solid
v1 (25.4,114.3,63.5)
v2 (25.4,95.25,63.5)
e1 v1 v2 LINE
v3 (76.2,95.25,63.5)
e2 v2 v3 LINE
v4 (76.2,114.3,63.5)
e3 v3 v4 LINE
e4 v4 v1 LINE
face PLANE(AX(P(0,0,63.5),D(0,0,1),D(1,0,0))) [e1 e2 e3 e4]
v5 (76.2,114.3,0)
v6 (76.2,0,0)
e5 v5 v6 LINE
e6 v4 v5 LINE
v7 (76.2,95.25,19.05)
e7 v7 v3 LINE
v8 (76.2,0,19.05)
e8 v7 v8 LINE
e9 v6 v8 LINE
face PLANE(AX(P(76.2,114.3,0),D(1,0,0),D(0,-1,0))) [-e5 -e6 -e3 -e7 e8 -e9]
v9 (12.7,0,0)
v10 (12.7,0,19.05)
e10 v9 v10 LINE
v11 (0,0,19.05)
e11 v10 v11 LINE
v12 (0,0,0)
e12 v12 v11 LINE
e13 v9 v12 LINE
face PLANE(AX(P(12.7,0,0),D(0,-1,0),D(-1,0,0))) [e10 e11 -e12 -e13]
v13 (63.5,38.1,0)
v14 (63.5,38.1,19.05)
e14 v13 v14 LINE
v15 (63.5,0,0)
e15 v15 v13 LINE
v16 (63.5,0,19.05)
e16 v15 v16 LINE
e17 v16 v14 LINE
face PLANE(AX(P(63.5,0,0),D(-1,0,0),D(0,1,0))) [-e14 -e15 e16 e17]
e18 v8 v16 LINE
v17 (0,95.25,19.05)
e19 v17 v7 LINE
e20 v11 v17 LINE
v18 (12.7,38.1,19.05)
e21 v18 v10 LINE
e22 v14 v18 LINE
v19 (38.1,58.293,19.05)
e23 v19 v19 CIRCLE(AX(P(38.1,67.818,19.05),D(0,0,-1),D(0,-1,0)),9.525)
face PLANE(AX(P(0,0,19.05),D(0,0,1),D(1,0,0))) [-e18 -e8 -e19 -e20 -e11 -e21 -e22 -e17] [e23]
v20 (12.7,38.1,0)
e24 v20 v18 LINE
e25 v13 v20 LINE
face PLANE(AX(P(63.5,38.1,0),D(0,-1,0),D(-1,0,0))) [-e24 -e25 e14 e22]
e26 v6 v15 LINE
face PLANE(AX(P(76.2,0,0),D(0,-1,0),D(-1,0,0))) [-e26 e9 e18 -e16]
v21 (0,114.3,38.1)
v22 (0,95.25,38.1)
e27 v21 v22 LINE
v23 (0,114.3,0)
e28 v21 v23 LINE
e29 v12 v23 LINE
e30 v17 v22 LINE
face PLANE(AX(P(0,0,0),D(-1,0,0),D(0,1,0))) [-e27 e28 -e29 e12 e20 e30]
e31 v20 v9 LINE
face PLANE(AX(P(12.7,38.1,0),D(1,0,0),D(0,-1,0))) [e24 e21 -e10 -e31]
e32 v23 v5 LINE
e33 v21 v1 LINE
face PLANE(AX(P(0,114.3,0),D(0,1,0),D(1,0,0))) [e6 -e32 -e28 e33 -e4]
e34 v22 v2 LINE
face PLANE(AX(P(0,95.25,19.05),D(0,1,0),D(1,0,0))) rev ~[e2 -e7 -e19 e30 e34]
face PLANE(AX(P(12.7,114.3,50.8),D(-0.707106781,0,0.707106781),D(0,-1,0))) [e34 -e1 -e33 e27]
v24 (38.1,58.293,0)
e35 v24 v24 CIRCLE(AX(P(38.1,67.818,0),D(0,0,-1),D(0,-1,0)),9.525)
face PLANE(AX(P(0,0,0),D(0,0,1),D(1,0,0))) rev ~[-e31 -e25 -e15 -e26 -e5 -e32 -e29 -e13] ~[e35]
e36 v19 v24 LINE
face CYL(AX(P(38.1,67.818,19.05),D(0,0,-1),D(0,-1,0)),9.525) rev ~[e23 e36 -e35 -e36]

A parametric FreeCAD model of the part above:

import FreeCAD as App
import Part
import Sketcher
from FreeCAD import Vector
Q = App.Units.Quantity


def edges_at(feature, points):
    """Names of the edges that pass closest to the given points."""
    edges = feature.Shape.Edges
    near = lambda p: min(range(len(edges)), key=lambda i: edges[i].distToShape(Part.Vertex(*p))[0])
    return sorted({f"Edge{near(p) + 1}" for p in points})

doc = App.newDocument("Part")
body = doc.addObject("PartDesign::Body", "Body")

sketch1 = body.newObject("Sketcher::SketchObject", "Sketch")
sketch1.AttachmentSupport = (doc.getObject("XY_Plane"), [""])
sketch1.MapMode = "FlatFace"
sketch1.addGeometry(Part.LineSegment(Vector(0, 114.3, 0), Vector(0, 0, 0)), False)
sketch1.addGeometry(Part.LineSegment(Vector(0, 0, 0), Vector(12.7, 0, 0)), False)
sketch1.addGeometry(Part.LineSegment(Vector(12.7, 0, 0), Vector(12.7, 38.1, 0)), False)
sketch1.addGeometry(Part.LineSegment(Vector(12.7, 38.1, 0), Vector(63.5, 38.1, 0)), False)
sketch1.addGeometry(Part.LineSegment(Vector(63.5, 38.1, 0), Vector(63.5, 0, 0)), False)
sketch1.addGeometry(Part.LineSegment(Vector(63.5, 0, 0), Vector(76.2, 0, 0)), False)
sketch1.addGeometry(Part.LineSegment(Vector(76.2, 0, 0), Vector(76.2, 114.3, 0)), False)
sketch1.addGeometry(Part.LineSegment(Vector(76.2, 114.3, 0), Vector(0, 114.3, 0)), False)
sketch1.addConstraint(Sketcher.Constraint("Coincident", 0, 2, 1, 1))
sketch1.addConstraint(Sketcher.Constraint("Coincident", 1, 2, 2, 1))
sketch1.addConstraint(Sketcher.Constraint("Coincident", 2, 2, 3, 1))
sketch1.addConstraint(Sketcher.Constraint("Coincident", 3, 2, 4, 1))
sketch1.addConstraint(Sketcher.Constraint("Coincident", 4, 2, 5, 1))
sketch1.addConstraint(Sketcher.Constraint("Coincident", 5, 2, 6, 1))
sketch1.addConstraint(Sketcher.Constraint("Coincident", 6, 2, 7, 1))
sketch1.addConstraint(Sketcher.Constraint("Coincident", 7, 2, 0, 1))
sketch1.addConstraint(Sketcher.Constraint("Vertical", 0))
sketch1.addConstraint(Sketcher.Constraint("Horizontal", 1))
sketch1.addConstraint(Sketcher.Constraint("Vertical", 2))
sketch1.addConstraint(Sketcher.Constraint("Horizontal", 3))
sketch1.addConstraint(Sketcher.Constraint("Vertical", 4))
sketch1.addConstraint(Sketcher.Constraint("Horizontal", 5))
sketch1.addConstraint(Sketcher.Constraint("Vertical", 6))
sketch1.addConstraint(Sketcher.Constraint("Horizontal", 7))
sketch1.addConstraint(Sketcher.Constraint("Coincident", 0, 2, -1, 1))
sketch1.addConstraint(Sketcher.Constraint("PointOnObject", 4, 2, -1))
sketch1.addConstraint(Sketcher.Constraint("Equal", 1, 5))
sketch1.addConstraint(Sketcher.Constraint("DistanceX", 3, 1, 3, 2, Q("2 in")))
sketch1.addConstraint(Sketcher.Constraint("DistanceX", 7, 2, 7, 1, Q("3 in")))
sketch1.addConstraint(Sketcher.Constraint("DistanceY", 0, 2, 0, 1, Q("4.5 in")))
sketch1.addConstraint(Sketcher.Constraint("DistanceY", 2, 1, 2, 2, Q("1.5 in")))
pad1 = body.newObject("PartDesign::Pad", "Pad")
pad1.Profile = sketch1
pad1.Length = Q("0.75 in")

sketch2 = body.newObject("Sketcher::SketchObject", "Sketch001")
sketch2.AttachmentSupport = (doc.getObject("XY_Plane"), [""])
sketch2.MapMode = "FlatFace"
sketch2.AttachmentOffset = App.Placement(Vector(0, 0, 0.75 * 25.4), App.Rotation())
sketch2.addGeometry(Part.LineSegment(Vector(76.2, 114.3, 0), Vector(0, 114.3, 0)), False)
sketch2.addGeometry(Part.LineSegment(Vector(0, 114.3, 0), Vector(0, 95.25, 0)), False)
sketch2.addGeometry(Part.LineSegment(Vector(0, 95.25, 0), Vector(76.2, 95.25, 0)), False)
sketch2.addGeometry(Part.LineSegment(Vector(76.2, 95.25, 0), Vector(76.2, 114.3, 0)), False)
sketch2.addConstraint(Sketcher.Constraint("Coincident", 0, 2, 1, 1))
sketch2.addConstraint(Sketcher.Constraint("Coincident", 1, 2, 2, 1))
sketch2.addConstraint(Sketcher.Constraint("Coincident", 2, 2, 3, 1))
sketch2.addConstraint(Sketcher.Constraint("Coincident", 3, 2, 0, 1))
sketch2.addConstraint(Sketcher.Constraint("Horizontal", 0))
sketch2.addConstraint(Sketcher.Constraint("Vertical", 1))
sketch2.addConstraint(Sketcher.Constraint("Horizontal", 2))
sketch2.addConstraint(Sketcher.Constraint("Vertical", 3))
sketch2.addConstraint(Sketcher.Constraint("PointOnObject", 0, 2, -2))
sketch2.addConstraint(Sketcher.Constraint("DistanceY", 1, 2, 1, 1, Q("0.75 in")))
sketch2.addConstraint(Sketcher.Constraint("DistanceX", 0, 2, 0, 1, Q("3 in")))
sketch2.addConstraint(Sketcher.Constraint("DistanceY", -1, 1, 0, 2, Q("4.5 in")))
pad2 = body.newObject("PartDesign::Pad", "Pad001")
pad2.Profile = sketch2
pad2.Length = Q("1.75 in")
doc.recompute()

chamfer = body.newObject("PartDesign::Chamfer", "Chamfer")
chamfer.Base = (pad2, edges_at(pad2, [(0, 104.775, 63.5)]))
chamfer.Size = Q("1 in")

sketch3 = body.newObject("Sketcher::SketchObject", "Sketch002")
sketch3.AttachmentSupport = (doc.getObject("XY_Plane"), [""])
sketch3.MapMode = "FlatFace"
sketch3.AttachmentOffset = App.Placement(Vector(0, 0, 0.75 * 25.4), App.Rotation())
sketch3.addGeometry(Part.Circle(Vector(38.1, 67.818, 0), Vector(0, 0, 1), 9.525), False)
sketch3.addConstraint(Sketcher.Constraint("Diameter", 0, Q("0.75 in")))
sketch3.addConstraint(Sketcher.Constraint("DistanceX", -1, 1, 0, 3, Q("1.5 in")))
sketch3.addConstraint(Sketcher.Constraint("DistanceY", -1, 1, 0, 3, Q("2.67 in")))
doc.recompute()
hole = body.newObject("PartDesign::Hole", "Hole")
hole.Profile = sketch3
hole.ThreadType = "None"
hole.Diameter = Q("0.75 in")
hole.DepthType = "ThroughAll"

doc.recompute()
